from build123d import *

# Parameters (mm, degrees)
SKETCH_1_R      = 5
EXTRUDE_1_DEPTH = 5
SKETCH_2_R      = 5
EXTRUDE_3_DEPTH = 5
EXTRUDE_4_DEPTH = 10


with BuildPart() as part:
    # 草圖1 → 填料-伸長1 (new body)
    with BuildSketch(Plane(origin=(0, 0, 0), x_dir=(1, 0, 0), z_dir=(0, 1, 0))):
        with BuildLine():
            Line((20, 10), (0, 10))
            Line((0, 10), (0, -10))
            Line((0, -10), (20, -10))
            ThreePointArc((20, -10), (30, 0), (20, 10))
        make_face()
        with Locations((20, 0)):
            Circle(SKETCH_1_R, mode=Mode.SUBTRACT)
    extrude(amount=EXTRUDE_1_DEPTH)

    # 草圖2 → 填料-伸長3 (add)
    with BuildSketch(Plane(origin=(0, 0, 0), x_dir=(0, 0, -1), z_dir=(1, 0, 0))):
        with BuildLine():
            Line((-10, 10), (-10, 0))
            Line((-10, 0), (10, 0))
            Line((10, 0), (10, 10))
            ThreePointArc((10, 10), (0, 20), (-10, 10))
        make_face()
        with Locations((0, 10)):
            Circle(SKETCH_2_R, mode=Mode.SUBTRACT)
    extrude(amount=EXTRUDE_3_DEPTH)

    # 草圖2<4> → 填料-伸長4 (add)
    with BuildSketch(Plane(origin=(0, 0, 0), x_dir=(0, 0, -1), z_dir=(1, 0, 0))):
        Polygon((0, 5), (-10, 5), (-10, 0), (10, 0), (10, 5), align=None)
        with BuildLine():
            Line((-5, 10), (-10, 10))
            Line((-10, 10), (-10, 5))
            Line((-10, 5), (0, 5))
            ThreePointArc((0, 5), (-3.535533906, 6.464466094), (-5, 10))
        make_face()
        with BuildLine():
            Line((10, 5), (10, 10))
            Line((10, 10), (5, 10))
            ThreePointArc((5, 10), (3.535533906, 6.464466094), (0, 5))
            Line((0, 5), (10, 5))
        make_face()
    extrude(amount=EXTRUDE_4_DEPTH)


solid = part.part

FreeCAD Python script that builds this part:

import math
import FreeCAD as App
import Part
import Sketcher
Q = App.Units.Quantity

doc = App.newDocument("Part")
body = doc.addObject("PartDesign::Body", "Body")

sketch1 = body.newObject("Sketcher::SketchObject", "Sketch")
sketch1.AttachmentSupport = (doc.getObject("XZ_Plane"), [""])
sketch1.MapMode = "FlatFace"
sketch1.addGeometry([
    Part.LineSegment(App.Vector(20, -10, 0), App.Vector(0, -10, 0)),
    Part.LineSegment(App.Vector(0, -10, 0), App.Vector(0, 10, 0)),
    Part.LineSegment(App.Vector(0, 10, 0), App.Vector(20, 10, 0)),
    Part.ArcOfCircle(Part.Circle(App.Vector(20, 0, 0), App.Vector(0, 0, 1), 10), math.radians(-90), math.radians(90)),
    Part.Circle(App.Vector(20, 0, 0), App.Vector(0, 0, 1), 5),
], False)
sketch1.addConstraint([
    Sketcher.Constraint("Coincident", 0, 2, 1, 1),
    Sketcher.Constraint("Coincident", 1, 2, 2, 1),
    Sketcher.Constraint("Tangent", 2, 2, 3, 2),
    Sketcher.Constraint("Tangent", 3, 1, 0, 1),
    Sketcher.Constraint("Horizontal", 0),
    Sketcher.Constraint("Vertical", 1),
    Sketcher.Constraint("Horizontal", 2),
    Sketcher.Constraint("Coincident", 4, 3, 3, 3),
    Sketcher.Constraint("Symmetric", 0, 2, 1, 2, -1, 1),
    Sketcher.Constraint("Equal", 2, 1),
    Sketcher.Constraint("Diameter", 4, Q("10 mm")),
    Sketcher.Constraint("Radius", 3, Q("10 mm")),
])
pad1 = body.newObject("PartDesign::Pad", "Pad")
pad1.Profile = sketch1
pad1.Length = 5
pad1.Reversed = True

sketch2 = body.newObject("Sketcher::SketchObject", "Sketch001")
sketch2.AttachmentSupport = (doc.getObject("YZ_Plane"), [""])
sketch2.MapMode = "FlatFace"
sketch2.addGeometry([
    Part.LineSegment(App.Vector(10, 10, 0), App.Vector(0, 10, 0)),
    Part.LineSegment(App.Vector(0, 10, 0), App.Vector(0, -10, 0)),
    Part.LineSegment(App.Vector(0, -10, 0), App.Vector(10, -10, 0)),
    Part.ArcOfCircle(Part.Circle(App.Vector(10, 0, 0), App.Vector(0, 0, 1), 10), math.radians(-90), math.radians(90)),
    Part.Circle(App.Vector(10, 0, 0), App.Vector(0, 0, 1), 5),
], False)
sketch2.addConstraint([
    Sketcher.Constraint("Coincident", 0, 2, 1, 1),
    Sketcher.Constraint("Coincident", 1, 2, 2, 1),
    Sketcher.Constraint("Tangent", 2, 2, 3, 1),
    Sketcher.Constraint("Tangent", 3, 2, 0, 1),
    Sketcher.Constraint("Horizontal", 0),
    Sketcher.Constraint("Vertical", 1),
    Sketcher.Constraint("Horizontal", 2),
    Sketcher.Constraint("Coincident", 4, 3, 3, 3),
    Sketcher.Constraint("Symmetric", 0, 2, 1, 2, -1, 1),
    Sketcher.Constraint("Diameter", 4, Q("10 mm")),
    Sketcher.Constraint("Radius", 3, Q("10 mm")),
    Sketcher.Constraint("DistanceX", 0, 2, 0, 1, Q("10 mm")),
])
pad2 = body.newObject("PartDesign::Pad", "Pad001")
pad2.Profile = sketch2
pad2.Length = 5

sketch3 = body.newObject("Sketcher::SketchObject", "Sketch002")
sketch3.AttachmentSupport = (doc.getObject("YZ_Plane"), [""])
sketch3.MapMode = "FlatFace"
sketch3.addGeometry([
    Part.LineSegment(App.Vector(0, 10, 0), App.Vector(0, -10, 0)),
    Part.LineSegment(App.Vector(0, -10, 0), App.Vector(10, -10, 0)),
    Part.LineSegment(App.Vector(10, -10, 0), App.Vector(10, -5, 0)),
    Part.ArcOfCircle(Part.Circle(App.Vector(10, 0, 0), App.Vector(0, 0, 1), 5), math.radians(180), math.radians(270)),
    Part.ArcOfCircle(Part.Circle(App.Vector(10, 0, 0), App.Vector(0, 0, 1), 5), math.radians(90), math.radians(180)),
    Part.LineSegment(App.Vector(10, 5, 0), App.Vector(10, 10, 0)),
    Part.LineSegment(App.Vector(10, 10, 0), App.Vector(0, 10, 0)),
], False)
sketch3.addConstraint([
    Sketcher.Constraint("Coincident", 0, 2, 1, 1),
    Sketcher.Constraint("Coincident", 1, 2, 2, 1),
    Sketcher.Constraint("Coincident", 2, 2, 3, 2),
    Sketcher.Constraint("Tangent", 3, 1, 4, 2),
    Sketcher.Constraint("Coincident", 4, 1, 5, 1),
    Sketcher.Constraint("Coincident", 5, 2, 6, 1),
    Sketcher.Constraint("Coincident", 6, 2, 0, 1),
    Sketcher.Constraint("Vertical", 0),
    Sketcher.Constraint("Horizontal", 1),
    Sketcher.Constraint("Vertical", 2),
    Sketcher.Constraint("Vertical", 5),
    Sketcher.Constraint("Horizontal", 6),
    Sketcher.Constraint("Equal", 3, 4),
    Sketcher.Constraint("Symmetric", 0, 2, 6, 2, -1, 1),
    Sketcher.Constraint("Symmetric", 2, 2, 4, 1, -1),
    Sketcher.Constraint("PointOnObject", 3, 1, -1),
    Sketcher.Constraint("Vertical", 4, 3, 1, 2),
    Sketcher.Constraint("Radius", 3, Q("5 mm")),
    Sketcher.Constraint("DistanceX", 1, 1, 1, 2, Q("10 mm")),
    Sketcher.Constraint("DistanceY", 0, 2, 0, 1, Q("20 mm")),
])
pad3 = body.newObject("PartDesign::Pad", "Pad002")
pad3.Profile = sketch3
pad3.Length = 10

doc.recompute()
